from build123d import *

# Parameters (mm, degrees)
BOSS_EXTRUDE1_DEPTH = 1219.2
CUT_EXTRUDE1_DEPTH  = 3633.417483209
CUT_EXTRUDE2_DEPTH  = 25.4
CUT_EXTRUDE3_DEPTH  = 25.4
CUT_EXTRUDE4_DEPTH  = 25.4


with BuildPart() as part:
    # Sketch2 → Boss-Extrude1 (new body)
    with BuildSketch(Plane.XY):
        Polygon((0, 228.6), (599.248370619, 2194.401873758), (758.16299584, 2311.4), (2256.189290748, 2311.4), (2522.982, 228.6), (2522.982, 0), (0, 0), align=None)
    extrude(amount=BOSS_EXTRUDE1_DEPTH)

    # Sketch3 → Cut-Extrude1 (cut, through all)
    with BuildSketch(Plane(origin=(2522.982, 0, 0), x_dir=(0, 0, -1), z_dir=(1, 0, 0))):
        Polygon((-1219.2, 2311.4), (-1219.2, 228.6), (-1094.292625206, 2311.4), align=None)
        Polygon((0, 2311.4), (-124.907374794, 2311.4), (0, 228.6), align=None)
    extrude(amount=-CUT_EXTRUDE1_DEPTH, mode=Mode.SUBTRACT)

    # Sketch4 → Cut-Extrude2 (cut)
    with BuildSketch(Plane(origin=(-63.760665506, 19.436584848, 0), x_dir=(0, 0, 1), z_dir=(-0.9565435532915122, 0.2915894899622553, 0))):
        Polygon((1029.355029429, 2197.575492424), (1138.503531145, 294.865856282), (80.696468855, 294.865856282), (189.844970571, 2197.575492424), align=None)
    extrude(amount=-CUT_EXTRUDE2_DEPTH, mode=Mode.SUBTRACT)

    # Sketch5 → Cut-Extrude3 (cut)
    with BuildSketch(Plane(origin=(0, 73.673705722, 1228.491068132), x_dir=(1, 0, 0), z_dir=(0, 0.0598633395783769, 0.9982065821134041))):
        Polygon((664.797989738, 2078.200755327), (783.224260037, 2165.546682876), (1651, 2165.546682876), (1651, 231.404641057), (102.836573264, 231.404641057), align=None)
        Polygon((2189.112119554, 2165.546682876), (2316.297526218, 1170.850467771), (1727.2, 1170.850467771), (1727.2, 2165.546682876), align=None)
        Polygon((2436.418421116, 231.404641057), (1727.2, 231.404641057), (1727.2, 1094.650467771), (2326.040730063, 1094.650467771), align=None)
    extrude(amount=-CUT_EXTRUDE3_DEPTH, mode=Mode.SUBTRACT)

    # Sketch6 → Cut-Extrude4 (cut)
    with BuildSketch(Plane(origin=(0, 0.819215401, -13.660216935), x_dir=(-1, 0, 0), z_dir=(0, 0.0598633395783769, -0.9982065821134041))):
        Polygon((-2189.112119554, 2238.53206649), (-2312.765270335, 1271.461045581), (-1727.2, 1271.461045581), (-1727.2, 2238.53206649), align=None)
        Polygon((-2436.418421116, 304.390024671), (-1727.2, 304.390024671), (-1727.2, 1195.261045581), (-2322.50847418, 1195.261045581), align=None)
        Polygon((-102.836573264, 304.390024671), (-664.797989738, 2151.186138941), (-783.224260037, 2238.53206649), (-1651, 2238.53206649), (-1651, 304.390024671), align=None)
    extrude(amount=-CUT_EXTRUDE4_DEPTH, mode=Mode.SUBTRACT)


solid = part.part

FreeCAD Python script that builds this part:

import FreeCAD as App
import Part
import Sketcher
from FreeCAD import Vector
Q = App.Units.Quantity


def add_polygon(sketch, points):
    """Adds a closed chain of lines whose ends are joined by coincident constraints."""
    first, n = sketch.GeometryCount, len(points)
    for a, b in zip(points, points[1:] + points[:1]):
        sketch.addGeometry(Part.LineSegment(App.Vector(*a, 0), App.Vector(*b, 0)), False)
    for i in range(n):
        sketch.addConstraint(Sketcher.Constraint("Coincident", first + i, 2, first + (i + 1) % n, 1))

doc = App.newDocument("Part")
body = doc.addObject("PartDesign::Body", "Body")

sketch1 = body.newObject("Sketcher::SketchObject", "Sketch")
sketch1.AttachmentSupport = (doc.getObject("XY_Plane"), [""])
sketch1.MapMode = "FlatFace"
add_polygon(sketch1, [(599.248371, 2194.401874), (0, 228.6), (0, 0), (2522.982, 0), (2522.982, 228.6), (2256.189291, 2311.4), (758.162996, 2311.4)])
sketch1.addConstraint(Sketcher.Constraint("Vertical", 1))
sketch1.addConstraint(Sketcher.Constraint("Horizontal", 2))
sketch1.addConstraint(Sketcher.Constraint("Vertical", 3))
sketch1.addConstraint(Sketcher.Constraint("Horizontal", 5))
sketch1.addConstraint(Sketcher.Constraint("Coincident", 1, 2, -1, 1))
sketch1.addConstraint(Sketcher.Constraint("Horizontal", 0, 2, 3, 2))
sketch1.addConstraint(Sketcher.Constraint("DistanceY", 1, 2, 1, 1, Q("9 in")))
sketch1.addConstraint(Sketcher.Constraint("DistanceY", -1, 1, 4, 2, Q("91 in")))
sketch1.addConstraint(Sketcher.Constraint("DistanceX", 2, 1, 2, 2, Q("99.33 in")))
sketch1.addConstraint(Sketcher.Constraint("Distance", 6, Q("197.338338 mm")))
sketch1.addConstraint(Sketcher.Constraint("DistanceX", 5, 2, 5, 1, Q("1498.026295 mm")))
sketch1.addConstraint(Sketcher.Constraint("DistanceX", -1, 1, 4, 2, Q("2256.189291 mm")))
sketch1.addConstraint(Sketcher.Constraint("DistanceX", -1, 1, 6, 2, Q("599.248371 mm")))
pad1 = body.newObject("PartDesign::Pad", "Pad")
pad1.Profile = sketch1
pad1.Length = Q("48 in")

sketch2 = body.newObject("Sketcher::SketchObject", "Sketch001")
sketch2.AttachmentSupport = (doc.getObject("YZ_Plane"), [""])
sketch2.MapMode = "FlatFace"
sketch2.AttachmentOffset = App.Placement(Vector(0, 0, 99.33 * 25.4), App.Rotation())
add_polygon(sketch2, [(2311.4, 1219.2), (228.6, 1219.2), (2311.4, 1094.292625)])
add_polygon(sketch2, [(2311.4, 0), (2311.4, 124.907375), (228.6, 0)])
sketch2.addConstraint(Sketcher.Constraint("Horizontal", 0))
sketch2.addConstraint(Sketcher.Constraint("Vertical", 2))
sketch2.addConstraint(Sketcher.Constraint("Vertical", 3))
sketch2.addConstraint(Sketcher.Constraint("Horizontal", 5))
sketch2.addConstraint(Sketcher.Constraint("PointOnObject", 4, 2, -1))
sketch2.addConstraint(Sketcher.Constraint("Vertical", 2, 2, 3, 2))
sketch2.addConstraint(Sketcher.Constraint("Vertical", 0, 2, 4, 2))
sketch2.addConstraint(Sketcher.Constraint("Equal", 2, 3))
sketch2.addConstraint(Sketcher.Constraint("DistanceX", 0, 2, 0, 1, Q("82 in")))
sketch2.addConstraint(Sketcher.Constraint("DistanceX", -1, 1, 0, 2, Q("9 in")))
sketch2.addConstraint(Sketcher.Constraint("DistanceY", -1, 1, 0, 2, Q("48 in")))
sketch2.addConstraint(Sketcher.Constraint("Distance", 1, Q("2086.542042 mm")))
pocket1 = body.newObject("PartDesign::Pocket", "Pocket")
pocket1.Profile = sketch2
pocket1.Type = "ThroughAll"

sketch3 = body.newObject("Sketcher::SketchObject", "Sketch002")
sketch3.Placement = App.Placement(Vector(-63.760666, 19.436585, 0), App.Rotation(Vector(0, 0, 1), Vector(0.29158949, 0.956543553, 0), Vector(-0.956543553, 0.29158949, 0), "ZXY"))
add_polygon(sketch3, [(1138.503531, 294.865856), (1029.355029, 2197.575491), (189.844971, 2197.575491), (80.696469, 294.865856)])
sketch3.addConstraint(Sketcher.Constraint("Horizontal", 1))
sketch3.addConstraint(Sketcher.Constraint("Horizontal", 3))
sketch3.addConstraint(Sketcher.Constraint("Equal", 0, 2))
sketch3.addConstraint(Sketcher.Constraint("DistanceX", 1, 2, 1, 1, Q("839.510059 mm")))
sketch3.addConstraint(Sketcher.Constraint("DistanceX", 2, 2, 1, 2, Q("109.148502 mm")))
sketch3.addConstraint(Sketcher.Constraint("DistanceX", -1, 1, 0, 2, Q("1029.355029 mm")))
sketch3.addConstraint(Sketcher.Constraint("DistanceY", -1, 1, 0, 2, Q("2197.575491 mm")))
sketch3.addConstraint(Sketcher.Constraint("Distance", 0, Q("1905.837703 mm")))
pocket2 = body.newObject("PartDesign::Pocket", "Pocket001")
pocket2.Profile = sketch3
pocket2.Length = Q("1 in")

sketch4 = body.newObject("Sketcher::SketchObject", "Sketch003")
sketch4.Placement = App.Placement(Vector(0, 73.673706, 1228.491068), App.Rotation(Vector(1, 0, 0), Vector(0, 0.998206582, -0.05986334), Vector(0, 0.05986334, 0.998206582), "ZXY"))
add_polygon(sketch4, [(783.22426, 2165.546682), (664.79799, 2078.200755), (102.836573, 231.404641), (1651, 231.404641), (1651, 2165.546682)])
add_polygon(sketch4, [(2316.297526, 1170.850468), (2189.11212, 2165.546682), (1727.2, 2165.546682), (1727.2, 1170.850468)])
add_polygon(sketch4, [(1727.2, 231.404641), (2436.418421, 231.404641), (2326.04073, 1094.650468), (1727.2, 1094.650468)])
sketch4.addConstraint(Sketcher.Constraint("Horizontal", 2))
sketch4.addConstraint(Sketcher.Constraint("Vertical", 3))
sketch4.addConstraint(Sketcher.Constraint("Horizontal", 4))
sketch4.addConstraint(Sketcher.Constraint("Horizontal", 6))
sketch4.addConstraint(Sketcher.Constraint("Vertical", 7))
sketch4.addConstraint(Sketcher.Constraint("Horizontal", 8))
sketch4.addConstraint(Sketcher.Constraint("Horizontal", 9))
sketch4.addConstraint(Sketcher.Constraint("Horizontal", 11))
sketch4.addConstraint(Sketcher.Constraint("Vertical", 12))
sketch4.addConstraint(Sketcher.Constraint("Parallel", 5, 10))
sketch4.addConstraint(Sketcher.Constraint("Horizontal", 4, 2, 5, 2))
sketch4.addConstraint(Sketcher.Constraint("Horizontal", 2, 2, 9, 2))
sketch4.addConstraint(Sketcher.Constraint("Vertical", 7, 2, 11, 2))
sketch4.addConstraint(Sketcher.Constraint("DistanceX", -1, 1, 2, 2, Q("65 in")))
sketch4.addConstraint(Sketcher.Constraint("DistanceX", -1, 1, 6, 2, Q("68 in")))
sketch4.addConstraint(Sketcher.Constraint("DistanceY", 10, 2, 8, 2, Q("3 in")))
sketch4.addConstraint(Sketcher.Constraint("Distance", 1, Q("1930.403201 mm")))
sketch4.addConstraint(Sketcher.Constraint("DistanceX", 4, 2, 4, 1, Q("867.77574 mm")))
sketch4.addConstraint(Sketcher.Constraint("DistanceX", 6, 2, 6, 1, Q("461.91212 mm")))
sketch4.addConstraint(Sketcher.Constraint("DistanceX", 9, 1, 9, 2, Q("709.218421 mm")))
sketch4.addConstraint(Sketcher.Constraint("DistanceX", 11, 2, 11, 1, Q("598.84073 mm")))
sketch4.addConstraint(Sketcher.Constraint("DistanceY", 3, 1, 3, 2, Q("1934.142041 mm")))
sketch4.addConstraint(Sketcher.Constraint("Distance", 5, Q("1002.794439 mm")))
sketch4.addConstraint(Sketcher.Constraint("DistanceX", 2, 1, 2, 2, Q("1548.163427 mm")))
sketch4.addConstraint(Sketcher.Constraint("DistanceX", -1, 1, 0, 2, Q("664.79799 mm")))
sketch4.addConstraint(Sketcher.Constraint("DistanceY", -1, 1, 1, 2, Q("231.404641 mm")))
pocket3 = body.newObject("PartDesign::Pocket", "Pocket002")
pocket3.Profile = sketch4
pocket3.Length = Q("1 in")

sketch5 = body.newObject("Sketcher::SketchObject", "Sketch004")
sketch5.Placement = App.Placement(Vector(0, 0.819215, -13.660217), App.Rotation(Vector(-1, 0, 0), Vector(0, 0.998206582, 0.05986334), Vector(0, 0.05986334, -0.998206582), "ZXY"))
add_polygon(sketch5, [(-2189.11212, 2238.532066), (-2312.76527, 1271.461045), (-1727.2, 1271.461045), (-1727.2, 2238.532066)])
add_polygon(sketch5, [(-2436.418421, 304.390025), (-1727.2, 304.390025), (-1727.2, 1195.261045), (-2322.508474, 1195.261045)])
add_polygon(sketch5, [(-102.836573, 304.390025), (-664.79799, 2151.186139), (-783.22426, 2238.532066), (-1651, 2238.532066), (-1651, 304.390025)])
sketch5.addConstraint(Sketcher.Constraint("Horizontal", 1))
sketch5.addConstraint(Sketcher.Constraint("Vertical", 2))
sketch5.addConstraint(Sketcher.Constraint("Horizontal", 3))
sketch5.addConstraint(Sketcher.Constraint("Horizontal", 4))
sketch5.addConstraint(Sketcher.Constraint("Vertical", 5))
sketch5.addConstraint(Sketcher.Constraint("Horizontal", 6))
sketch5.addConstraint(Sketcher.Constraint("Horizontal", 10))
sketch5.addConstraint(Sketcher.Constraint("Vertical", 11))
sketch5.addConstraint(Sketcher.Constraint("Horizontal", 12))
sketch5.addConstraint(Sketcher.Constraint("Parallel", 0, 7))
sketch5.addConstraint(Sketcher.Constraint("Horizontal", 3, 2, 9, 2))
sketch5.addConstraint(Sketcher.Constraint("Horizontal", 7, 2, 11, 2))
sketch5.addConstraint(Sketcher.Constraint("Vertical", 2, 2, 4, 2))
sketch5.addConstraint(Sketcher.Constraint("DistanceX", 1, 2, -1, 1, Q("68 in")))
sketch5.addConstraint(Sketcher.Constraint("DistanceX", 10, 2, -1, 1, Q("65 in")))
sketch5.addConstraint(Sketcher.Constraint("DistanceY", 5, 2, 1, 2, Q("3 in")))
sketch5.addConstraint(Sketcher.Constraint("Distance", 8, Q("1930.403201 mm")))
sketch5.addConstraint(Sketcher.Constraint("DistanceX", 1, 1, 1, 2, Q("585.56527 mm")))
sketch5.addConstraint(Sketcher.Constraint("DistanceX", 3, 2, 3, 1, Q("461.91212 mm")))
sketch5.addConstraint(Sketcher.Constraint("DistanceX", 4, 1, 4, 2, Q("709.218421 mm")))
sketch5.addConstraint(Sketcher.Constraint("DistanceX", 10, 2, 10, 1, Q("867.77574 mm")))
sketch5.addConstraint(Sketcher.Constraint("DistanceY", 2, 1, 2, 2, Q("967.071021 mm")))
sketch5.addConstraint(Sketcher.Constraint("DistanceY", 5, 1, 5, 2, Q("890.871021 mm")))
sketch5.addConstraint(Sketcher.Constraint("DistanceX", 12, 1, 12, 2, Q("1548.163427 mm")))
sketch5.addConstraint(Sketcher.Constraint("DistanceX", 8, 2, -1, 1, Q("664.79799 mm")))
sketch5.addConstraint(Sketcher.Constraint("DistanceY", -1, 1, 8, 2, Q("2151.186139 mm")))
pocket4 = body.newObject("PartDesign::Pocket", "Pocket003")
pocket4.Profile = sketch5
pocket4.Length = Q("1 in")

doc.recompute()
